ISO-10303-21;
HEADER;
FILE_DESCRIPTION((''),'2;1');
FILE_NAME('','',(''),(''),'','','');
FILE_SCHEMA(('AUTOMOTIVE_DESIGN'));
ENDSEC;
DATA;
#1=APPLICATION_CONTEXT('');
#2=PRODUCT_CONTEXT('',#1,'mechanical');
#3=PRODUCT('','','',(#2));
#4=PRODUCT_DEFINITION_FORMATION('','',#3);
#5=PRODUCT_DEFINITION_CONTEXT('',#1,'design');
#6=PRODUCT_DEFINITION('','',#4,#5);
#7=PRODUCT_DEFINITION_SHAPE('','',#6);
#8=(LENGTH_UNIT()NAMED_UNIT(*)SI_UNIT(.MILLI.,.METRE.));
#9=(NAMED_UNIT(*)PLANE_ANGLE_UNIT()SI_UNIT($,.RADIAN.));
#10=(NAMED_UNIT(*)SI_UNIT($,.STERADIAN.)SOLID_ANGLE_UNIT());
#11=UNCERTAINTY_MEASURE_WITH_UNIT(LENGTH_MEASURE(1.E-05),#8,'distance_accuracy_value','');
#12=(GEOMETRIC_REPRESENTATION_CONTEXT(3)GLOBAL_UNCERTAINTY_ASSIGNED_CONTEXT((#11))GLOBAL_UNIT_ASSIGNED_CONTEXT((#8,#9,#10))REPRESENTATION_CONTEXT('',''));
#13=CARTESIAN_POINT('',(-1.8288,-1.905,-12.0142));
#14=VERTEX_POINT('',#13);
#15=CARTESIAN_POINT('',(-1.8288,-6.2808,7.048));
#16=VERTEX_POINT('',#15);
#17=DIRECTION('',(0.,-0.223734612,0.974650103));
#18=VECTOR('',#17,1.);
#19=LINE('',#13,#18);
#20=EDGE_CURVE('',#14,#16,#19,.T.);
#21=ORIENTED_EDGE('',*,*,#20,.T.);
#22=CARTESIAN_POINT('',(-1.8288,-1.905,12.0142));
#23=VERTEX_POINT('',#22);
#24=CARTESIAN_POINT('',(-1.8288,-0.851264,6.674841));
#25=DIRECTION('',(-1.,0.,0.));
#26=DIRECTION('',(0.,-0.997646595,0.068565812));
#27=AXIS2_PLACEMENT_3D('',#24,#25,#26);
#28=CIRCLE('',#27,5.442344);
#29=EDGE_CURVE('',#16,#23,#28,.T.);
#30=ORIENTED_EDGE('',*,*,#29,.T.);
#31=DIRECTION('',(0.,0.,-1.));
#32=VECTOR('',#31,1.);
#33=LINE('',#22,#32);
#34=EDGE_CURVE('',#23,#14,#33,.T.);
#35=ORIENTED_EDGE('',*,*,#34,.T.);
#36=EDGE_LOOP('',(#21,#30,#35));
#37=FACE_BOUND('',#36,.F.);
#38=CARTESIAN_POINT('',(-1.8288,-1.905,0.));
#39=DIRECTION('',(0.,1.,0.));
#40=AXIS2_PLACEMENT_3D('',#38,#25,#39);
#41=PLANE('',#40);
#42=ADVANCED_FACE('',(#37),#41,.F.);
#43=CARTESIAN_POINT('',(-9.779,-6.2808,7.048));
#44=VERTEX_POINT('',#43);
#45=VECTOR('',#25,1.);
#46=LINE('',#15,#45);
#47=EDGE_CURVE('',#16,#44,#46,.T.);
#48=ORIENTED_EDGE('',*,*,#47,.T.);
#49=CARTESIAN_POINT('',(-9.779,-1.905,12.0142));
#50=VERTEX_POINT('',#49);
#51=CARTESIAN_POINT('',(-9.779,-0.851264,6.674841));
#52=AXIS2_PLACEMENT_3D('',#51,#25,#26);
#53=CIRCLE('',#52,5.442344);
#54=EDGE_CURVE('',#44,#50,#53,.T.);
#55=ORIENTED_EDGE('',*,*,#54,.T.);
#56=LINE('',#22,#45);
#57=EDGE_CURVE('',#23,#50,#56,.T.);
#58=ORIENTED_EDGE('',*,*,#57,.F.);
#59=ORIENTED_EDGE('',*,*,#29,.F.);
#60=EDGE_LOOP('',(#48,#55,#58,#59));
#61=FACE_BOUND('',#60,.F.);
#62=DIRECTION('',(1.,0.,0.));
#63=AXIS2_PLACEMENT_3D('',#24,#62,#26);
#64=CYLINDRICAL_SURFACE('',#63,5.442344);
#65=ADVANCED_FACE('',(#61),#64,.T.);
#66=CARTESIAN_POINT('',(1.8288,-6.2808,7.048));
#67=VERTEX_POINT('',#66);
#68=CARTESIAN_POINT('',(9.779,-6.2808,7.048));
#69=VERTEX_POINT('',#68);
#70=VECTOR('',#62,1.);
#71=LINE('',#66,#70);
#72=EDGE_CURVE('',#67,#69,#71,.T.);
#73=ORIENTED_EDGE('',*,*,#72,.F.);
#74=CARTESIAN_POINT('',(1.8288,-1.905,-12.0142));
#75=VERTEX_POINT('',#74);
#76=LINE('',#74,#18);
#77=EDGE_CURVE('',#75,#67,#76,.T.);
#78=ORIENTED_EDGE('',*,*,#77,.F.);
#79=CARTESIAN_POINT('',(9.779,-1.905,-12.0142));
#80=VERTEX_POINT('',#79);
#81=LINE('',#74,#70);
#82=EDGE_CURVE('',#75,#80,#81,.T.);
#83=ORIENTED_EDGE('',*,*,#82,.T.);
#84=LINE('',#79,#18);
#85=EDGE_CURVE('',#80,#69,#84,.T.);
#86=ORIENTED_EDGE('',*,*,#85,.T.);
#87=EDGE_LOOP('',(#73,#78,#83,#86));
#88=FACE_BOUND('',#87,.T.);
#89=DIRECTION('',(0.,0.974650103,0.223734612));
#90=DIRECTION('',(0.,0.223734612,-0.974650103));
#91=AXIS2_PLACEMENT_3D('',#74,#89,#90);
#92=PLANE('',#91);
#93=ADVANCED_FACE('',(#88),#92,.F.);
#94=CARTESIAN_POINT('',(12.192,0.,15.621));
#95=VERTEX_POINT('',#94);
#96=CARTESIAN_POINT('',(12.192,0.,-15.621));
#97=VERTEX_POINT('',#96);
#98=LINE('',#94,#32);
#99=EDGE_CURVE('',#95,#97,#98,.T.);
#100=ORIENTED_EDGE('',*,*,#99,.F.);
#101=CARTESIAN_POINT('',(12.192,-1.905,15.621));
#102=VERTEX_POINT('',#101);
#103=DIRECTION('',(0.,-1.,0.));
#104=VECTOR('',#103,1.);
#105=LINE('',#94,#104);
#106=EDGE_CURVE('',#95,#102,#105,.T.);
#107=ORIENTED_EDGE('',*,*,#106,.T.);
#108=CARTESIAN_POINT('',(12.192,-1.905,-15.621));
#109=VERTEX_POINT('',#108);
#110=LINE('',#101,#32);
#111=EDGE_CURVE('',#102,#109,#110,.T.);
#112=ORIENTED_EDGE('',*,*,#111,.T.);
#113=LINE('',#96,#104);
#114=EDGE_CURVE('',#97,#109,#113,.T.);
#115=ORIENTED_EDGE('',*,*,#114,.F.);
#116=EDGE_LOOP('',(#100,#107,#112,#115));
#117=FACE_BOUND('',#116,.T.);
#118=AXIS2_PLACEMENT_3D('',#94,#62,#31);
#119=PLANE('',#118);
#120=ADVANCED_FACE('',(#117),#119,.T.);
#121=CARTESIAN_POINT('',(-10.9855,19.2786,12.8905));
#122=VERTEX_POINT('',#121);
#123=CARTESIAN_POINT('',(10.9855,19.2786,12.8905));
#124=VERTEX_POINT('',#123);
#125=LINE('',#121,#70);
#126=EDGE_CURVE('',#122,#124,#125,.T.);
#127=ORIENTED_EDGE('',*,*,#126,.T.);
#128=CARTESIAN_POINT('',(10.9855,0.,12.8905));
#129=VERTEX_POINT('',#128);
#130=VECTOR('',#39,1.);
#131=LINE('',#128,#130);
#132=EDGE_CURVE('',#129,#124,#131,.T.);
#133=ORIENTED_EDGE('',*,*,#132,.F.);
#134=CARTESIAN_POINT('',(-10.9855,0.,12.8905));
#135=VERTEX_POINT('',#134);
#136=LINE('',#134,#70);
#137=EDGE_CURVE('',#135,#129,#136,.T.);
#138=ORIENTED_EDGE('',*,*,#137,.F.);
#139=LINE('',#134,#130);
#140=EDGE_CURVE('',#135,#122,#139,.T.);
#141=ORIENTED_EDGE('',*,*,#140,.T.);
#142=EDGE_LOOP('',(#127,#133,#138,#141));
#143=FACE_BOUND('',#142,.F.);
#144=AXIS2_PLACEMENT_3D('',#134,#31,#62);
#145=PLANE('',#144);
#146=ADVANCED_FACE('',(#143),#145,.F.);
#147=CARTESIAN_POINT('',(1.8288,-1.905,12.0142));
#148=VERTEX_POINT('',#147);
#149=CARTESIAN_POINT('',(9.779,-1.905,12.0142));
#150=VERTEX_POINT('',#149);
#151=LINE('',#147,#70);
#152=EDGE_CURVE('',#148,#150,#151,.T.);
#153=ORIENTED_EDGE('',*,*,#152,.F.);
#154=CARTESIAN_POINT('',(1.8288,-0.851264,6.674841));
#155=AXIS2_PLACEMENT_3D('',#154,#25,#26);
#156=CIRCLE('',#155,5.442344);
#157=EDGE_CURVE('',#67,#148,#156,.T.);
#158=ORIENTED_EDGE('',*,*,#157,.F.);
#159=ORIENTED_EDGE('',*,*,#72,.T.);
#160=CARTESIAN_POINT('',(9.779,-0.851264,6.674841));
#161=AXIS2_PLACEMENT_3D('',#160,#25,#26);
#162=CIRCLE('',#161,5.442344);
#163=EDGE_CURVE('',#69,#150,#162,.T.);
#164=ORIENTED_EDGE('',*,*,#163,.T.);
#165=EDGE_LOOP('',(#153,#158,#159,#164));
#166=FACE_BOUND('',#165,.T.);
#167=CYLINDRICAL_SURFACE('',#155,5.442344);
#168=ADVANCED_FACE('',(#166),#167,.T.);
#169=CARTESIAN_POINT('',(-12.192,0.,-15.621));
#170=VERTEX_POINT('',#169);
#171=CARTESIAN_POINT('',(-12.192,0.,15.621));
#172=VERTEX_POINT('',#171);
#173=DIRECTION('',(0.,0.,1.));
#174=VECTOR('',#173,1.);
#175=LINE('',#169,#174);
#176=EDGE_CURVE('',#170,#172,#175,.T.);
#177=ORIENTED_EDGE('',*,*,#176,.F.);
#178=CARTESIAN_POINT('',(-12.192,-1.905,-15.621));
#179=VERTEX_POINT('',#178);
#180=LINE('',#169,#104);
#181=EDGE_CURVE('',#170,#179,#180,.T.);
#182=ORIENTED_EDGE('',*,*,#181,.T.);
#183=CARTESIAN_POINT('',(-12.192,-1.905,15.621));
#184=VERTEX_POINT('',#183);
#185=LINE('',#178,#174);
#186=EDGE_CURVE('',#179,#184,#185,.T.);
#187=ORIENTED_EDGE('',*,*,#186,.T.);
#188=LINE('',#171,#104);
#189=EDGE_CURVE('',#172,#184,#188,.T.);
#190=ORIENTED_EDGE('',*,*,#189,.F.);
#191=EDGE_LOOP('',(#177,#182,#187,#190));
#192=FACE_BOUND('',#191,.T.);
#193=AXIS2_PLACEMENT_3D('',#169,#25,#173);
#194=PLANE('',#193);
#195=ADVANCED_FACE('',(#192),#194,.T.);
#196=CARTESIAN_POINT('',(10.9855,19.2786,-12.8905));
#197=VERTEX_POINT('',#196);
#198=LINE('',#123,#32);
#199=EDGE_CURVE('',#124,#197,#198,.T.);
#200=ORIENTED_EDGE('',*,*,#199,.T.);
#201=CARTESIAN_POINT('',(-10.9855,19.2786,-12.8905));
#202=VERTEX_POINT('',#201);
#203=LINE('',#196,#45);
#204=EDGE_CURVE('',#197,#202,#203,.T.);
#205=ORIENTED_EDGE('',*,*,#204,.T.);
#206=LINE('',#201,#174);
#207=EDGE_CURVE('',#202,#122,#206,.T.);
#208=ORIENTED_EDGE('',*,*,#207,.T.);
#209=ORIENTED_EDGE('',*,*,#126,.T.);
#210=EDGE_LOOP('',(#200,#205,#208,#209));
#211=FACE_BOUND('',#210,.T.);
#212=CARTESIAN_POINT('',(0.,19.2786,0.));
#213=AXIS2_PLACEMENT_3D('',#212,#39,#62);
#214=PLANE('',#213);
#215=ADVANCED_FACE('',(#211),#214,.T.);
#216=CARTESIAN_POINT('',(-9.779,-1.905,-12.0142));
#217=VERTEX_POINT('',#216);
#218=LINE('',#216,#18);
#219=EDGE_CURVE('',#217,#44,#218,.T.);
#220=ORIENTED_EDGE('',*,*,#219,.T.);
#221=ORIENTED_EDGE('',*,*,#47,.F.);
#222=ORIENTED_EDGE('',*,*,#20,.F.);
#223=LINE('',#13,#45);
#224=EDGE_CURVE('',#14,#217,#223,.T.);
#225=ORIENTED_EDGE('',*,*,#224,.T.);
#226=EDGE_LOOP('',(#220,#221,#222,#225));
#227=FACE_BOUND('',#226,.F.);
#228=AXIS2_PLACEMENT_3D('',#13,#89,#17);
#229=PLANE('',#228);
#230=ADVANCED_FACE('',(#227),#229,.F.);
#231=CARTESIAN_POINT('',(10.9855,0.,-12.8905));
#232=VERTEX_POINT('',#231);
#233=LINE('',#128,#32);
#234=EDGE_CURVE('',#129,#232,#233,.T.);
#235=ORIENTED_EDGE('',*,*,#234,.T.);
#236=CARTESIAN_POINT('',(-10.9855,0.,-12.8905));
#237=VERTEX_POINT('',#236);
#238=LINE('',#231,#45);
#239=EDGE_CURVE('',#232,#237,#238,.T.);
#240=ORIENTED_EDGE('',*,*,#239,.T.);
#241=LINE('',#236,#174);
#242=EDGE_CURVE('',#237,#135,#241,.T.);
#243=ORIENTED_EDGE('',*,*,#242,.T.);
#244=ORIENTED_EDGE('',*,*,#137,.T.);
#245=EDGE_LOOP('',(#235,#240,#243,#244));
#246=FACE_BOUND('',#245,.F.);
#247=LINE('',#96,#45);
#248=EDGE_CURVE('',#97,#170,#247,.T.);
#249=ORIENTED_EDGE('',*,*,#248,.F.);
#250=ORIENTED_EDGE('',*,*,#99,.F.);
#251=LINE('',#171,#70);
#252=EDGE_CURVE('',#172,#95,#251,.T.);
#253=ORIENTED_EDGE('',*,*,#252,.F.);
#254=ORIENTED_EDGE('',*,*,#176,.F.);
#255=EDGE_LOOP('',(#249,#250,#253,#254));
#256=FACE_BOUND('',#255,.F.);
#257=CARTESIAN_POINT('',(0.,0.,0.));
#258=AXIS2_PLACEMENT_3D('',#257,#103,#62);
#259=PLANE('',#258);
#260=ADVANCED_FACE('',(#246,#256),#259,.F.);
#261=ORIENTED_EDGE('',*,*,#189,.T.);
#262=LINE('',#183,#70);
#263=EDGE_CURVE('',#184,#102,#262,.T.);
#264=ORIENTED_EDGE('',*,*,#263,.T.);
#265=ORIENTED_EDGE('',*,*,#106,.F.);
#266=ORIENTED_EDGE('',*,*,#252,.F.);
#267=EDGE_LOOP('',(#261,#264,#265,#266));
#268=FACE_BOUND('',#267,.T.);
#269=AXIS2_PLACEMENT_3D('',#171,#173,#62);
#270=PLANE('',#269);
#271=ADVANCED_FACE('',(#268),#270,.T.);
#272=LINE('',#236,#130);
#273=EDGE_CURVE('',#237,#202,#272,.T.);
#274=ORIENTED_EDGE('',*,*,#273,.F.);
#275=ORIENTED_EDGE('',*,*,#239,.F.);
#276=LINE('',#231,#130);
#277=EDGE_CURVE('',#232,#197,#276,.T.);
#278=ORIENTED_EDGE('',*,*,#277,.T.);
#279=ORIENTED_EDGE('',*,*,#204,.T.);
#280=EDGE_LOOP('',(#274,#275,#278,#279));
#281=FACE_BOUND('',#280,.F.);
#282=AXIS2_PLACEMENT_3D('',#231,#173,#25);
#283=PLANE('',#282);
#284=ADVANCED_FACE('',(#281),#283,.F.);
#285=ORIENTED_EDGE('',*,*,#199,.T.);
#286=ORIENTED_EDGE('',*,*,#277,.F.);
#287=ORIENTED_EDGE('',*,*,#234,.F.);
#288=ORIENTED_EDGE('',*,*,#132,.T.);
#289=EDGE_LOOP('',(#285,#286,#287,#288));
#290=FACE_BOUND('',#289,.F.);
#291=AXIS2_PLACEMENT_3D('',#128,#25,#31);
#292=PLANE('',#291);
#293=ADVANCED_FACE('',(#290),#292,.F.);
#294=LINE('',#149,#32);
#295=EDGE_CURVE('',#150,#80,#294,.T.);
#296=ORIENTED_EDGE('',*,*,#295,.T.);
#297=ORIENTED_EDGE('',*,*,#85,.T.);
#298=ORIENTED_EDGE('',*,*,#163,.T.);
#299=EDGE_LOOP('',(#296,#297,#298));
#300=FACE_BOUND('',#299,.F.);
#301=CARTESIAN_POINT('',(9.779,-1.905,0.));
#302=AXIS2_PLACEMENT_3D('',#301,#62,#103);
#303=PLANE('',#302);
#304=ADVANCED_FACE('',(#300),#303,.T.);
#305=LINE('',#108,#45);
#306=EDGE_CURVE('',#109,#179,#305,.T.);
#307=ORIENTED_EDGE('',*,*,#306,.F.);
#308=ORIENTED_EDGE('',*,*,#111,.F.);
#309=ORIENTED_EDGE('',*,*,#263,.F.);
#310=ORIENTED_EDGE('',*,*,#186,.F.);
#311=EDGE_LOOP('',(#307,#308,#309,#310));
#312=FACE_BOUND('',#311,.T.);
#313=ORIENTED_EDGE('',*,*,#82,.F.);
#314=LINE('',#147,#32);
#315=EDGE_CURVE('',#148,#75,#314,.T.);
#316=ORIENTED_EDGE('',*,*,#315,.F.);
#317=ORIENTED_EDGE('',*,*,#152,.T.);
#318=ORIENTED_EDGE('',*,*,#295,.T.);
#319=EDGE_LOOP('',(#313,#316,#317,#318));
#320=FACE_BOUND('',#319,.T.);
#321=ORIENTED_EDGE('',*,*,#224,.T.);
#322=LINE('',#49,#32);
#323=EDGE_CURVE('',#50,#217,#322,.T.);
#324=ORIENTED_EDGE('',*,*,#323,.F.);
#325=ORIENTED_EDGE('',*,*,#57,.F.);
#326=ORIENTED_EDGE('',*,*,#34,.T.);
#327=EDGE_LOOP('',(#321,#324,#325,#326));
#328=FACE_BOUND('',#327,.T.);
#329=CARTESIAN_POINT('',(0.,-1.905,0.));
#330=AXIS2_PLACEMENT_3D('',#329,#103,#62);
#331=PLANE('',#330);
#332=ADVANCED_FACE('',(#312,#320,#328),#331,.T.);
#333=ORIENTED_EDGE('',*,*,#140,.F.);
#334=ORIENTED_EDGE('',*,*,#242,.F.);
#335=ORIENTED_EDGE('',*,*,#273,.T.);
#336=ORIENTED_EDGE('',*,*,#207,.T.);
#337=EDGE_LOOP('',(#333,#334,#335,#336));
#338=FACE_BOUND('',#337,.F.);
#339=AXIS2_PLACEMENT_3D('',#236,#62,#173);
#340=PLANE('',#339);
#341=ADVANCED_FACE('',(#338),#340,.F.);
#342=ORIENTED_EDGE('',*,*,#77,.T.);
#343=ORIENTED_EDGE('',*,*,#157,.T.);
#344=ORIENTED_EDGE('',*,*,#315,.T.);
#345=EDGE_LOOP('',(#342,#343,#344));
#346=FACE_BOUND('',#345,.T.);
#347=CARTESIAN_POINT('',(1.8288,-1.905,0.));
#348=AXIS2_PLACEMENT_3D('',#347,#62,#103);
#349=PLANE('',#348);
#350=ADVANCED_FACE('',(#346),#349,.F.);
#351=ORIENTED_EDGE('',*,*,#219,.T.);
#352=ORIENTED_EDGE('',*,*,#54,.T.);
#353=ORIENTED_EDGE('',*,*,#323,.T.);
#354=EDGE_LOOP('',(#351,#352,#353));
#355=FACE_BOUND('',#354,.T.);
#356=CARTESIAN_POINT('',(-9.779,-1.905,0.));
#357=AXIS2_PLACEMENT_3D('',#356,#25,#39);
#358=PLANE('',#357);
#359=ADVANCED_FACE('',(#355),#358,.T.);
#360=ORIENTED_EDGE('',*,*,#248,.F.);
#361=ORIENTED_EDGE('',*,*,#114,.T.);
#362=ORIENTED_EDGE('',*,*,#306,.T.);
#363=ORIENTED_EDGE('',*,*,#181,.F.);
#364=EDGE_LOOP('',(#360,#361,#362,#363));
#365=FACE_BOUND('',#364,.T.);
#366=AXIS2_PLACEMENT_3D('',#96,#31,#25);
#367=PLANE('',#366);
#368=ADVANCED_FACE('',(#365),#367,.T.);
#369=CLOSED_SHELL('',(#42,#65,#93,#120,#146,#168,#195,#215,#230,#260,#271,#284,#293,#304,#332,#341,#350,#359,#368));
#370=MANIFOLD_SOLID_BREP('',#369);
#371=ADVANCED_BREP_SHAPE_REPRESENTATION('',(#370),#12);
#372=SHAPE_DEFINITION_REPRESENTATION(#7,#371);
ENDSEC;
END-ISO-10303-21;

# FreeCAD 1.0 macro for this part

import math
import FreeCAD as App
import Part
import Sketcher
from FreeCAD import Vector
Q = App.Units.Quantity


def add_polygon(sketch, points):
    """Adds a closed chain of lines whose ends are joined by coincident constraints."""
    first, n = sketch.GeometryCount, len(points)
    for a, b in zip(points, points[1:] + points[:1]):
        sketch.addGeometry(Part.LineSegment(App.Vector(*a, 0), App.Vector(*b, 0)), False)
    for i in range(n):
        sketch.addConstraint(Sketcher.Constraint("Coincident", first + i, 2, first + (i + 1) % n, 1))

doc = App.newDocument("Part")
body = doc.addObject("PartDesign::Body", "Body")

sketch1 = doc.addObject("Sketcher::SketchObject", "Sketch")
body.addObject(sketch1)
sketch1.AttachmentSupport = (doc.XZ_Plane, [""])
sketch1.MapMode = "FlatFace"
add_polygon(sketch1, [(11, 13), (11, -13), (-11, -13), (-11, 13)])
sketch1.addConstraint([
    Sketcher.Constraint("Vertical", 0),
    Sketcher.Constraint("Horizontal", 1),
    Sketcher.Constraint("Vertical", 2),
    Sketcher.Constraint("Horizontal", 3),
    Sketcher.Constraint("Symmetric", 0, 2, 2, 2, -1, 1),
    Sketcher.Constraint("DistanceX", 1, 2, 1, 1, Q("0.865 in")),
    Sketcher.Constraint("DistanceY", 0, 2, 0, 1, Q("1.015 in")),
])
pad1 = doc.addObject("PartDesign::Pad", "Pad")
body.addObject(pad1)
pad1.Profile = sketch1
pad1.Length = Q("0.759 in")
pad1.Reversed = True

sketch2 = doc.addObject("Sketcher::SketchObject", "Sketch001")
body.addObject(sketch2)
sketch2.AttachmentSupport = (doc.XZ_Plane, [""])
sketch2.MapMode = "FlatFace"
add_polygon(sketch2, [(-12, -16), (12, -16), (12, 16), (-12, 16)])
sketch2.addConstraint([
    Sketcher.Constraint("Horizontal", 0),
    Sketcher.Constraint("Vertical", 1),
    Sketcher.Constraint("Horizontal", 2),
    Sketcher.Constraint("Vertical", 3),
    Sketcher.Constraint("Symmetric", 0, 2, 2, 2, -1, 1),
    Sketcher.Constraint("DistanceX", 0, 1, 0, 2, Q("0.96 in")),
    Sketcher.Constraint("DistanceY", 1, 1, 1, 2, Q("1.23 in")),
])
pad2 = doc.addObject("PartDesign::Pad", "Pad001")
body.addObject(pad2)
pad2.Profile = sketch2
pad2.Length = Q("0.075 in")

sketch3 = doc.addObject("Sketcher::SketchObject", "Sketch002")
body.addObject(sketch3)
sketch3.AttachmentSupport = (doc.YZ_Plane, [""])
sketch3.MapMode = "FlatFace"
sketch3.AttachmentOffset = App.Placement(Vector(0, 0, -0.072 * 25.4), App.Rotation())
sketch3.addGeometry([
    Part.ArcOfCircle(Part.Circle(Vector(-1, 7, 0), Vector(0, 0, 1), 5), math.radians(101), math.radians(176)),
    Part.LineSegment(Vector(-2, 12, 0), Vector(-2, -12, 0)),
    Part.LineSegment(Vector(-2, -12, 0), Vector(-6, 7, 0)),
], False)
sketch3.addConstraint([
    Sketcher.Constraint("Coincident", 0, 1, 1, 1),
    Sketcher.Constraint("Coincident", 1, 2, 2, 1),
    Sketcher.Constraint("Coincident", 2, 2, 0, 2),
    Sketcher.Constraint("Vertical", 1),
    Sketcher.Constraint("Distance", 2, Q("0.77 in")),
    Sketcher.Constraint("DistanceY", 1, 2, 1, 1, Q("0.946 in")),
    Sketcher.Constraint("Radius", 0, 5.4423),
    Sketcher.Constraint("DistanceX", 0, 1, -1, 1, Q("0.075 in")),
    Sketcher.Constraint("DistanceY", -1, 1, 0, 1, Q("0.473 in")),
    Sketcher.Constraint("DistanceY", 0, 3, 0, 1, Q("0.2102 in")),
])
pad3 = doc.addObject("PartDesign::Pad", "Pad002")
body.addObject(pad3)
pad3.Profile = sketch3
pad3.Length = Q("0.313 in")
pad3.Reversed = True
doc.recompute()

mirrored = doc.addObject("PartDesign::Mirrored", "Mirrored")
body.addObject(mirrored)
mirrored.Originals = [pad3]
mirrored.MirrorPlane = (doc.YZ_Plane, [""])
body.Tip = mirrored

doc.recompute()
